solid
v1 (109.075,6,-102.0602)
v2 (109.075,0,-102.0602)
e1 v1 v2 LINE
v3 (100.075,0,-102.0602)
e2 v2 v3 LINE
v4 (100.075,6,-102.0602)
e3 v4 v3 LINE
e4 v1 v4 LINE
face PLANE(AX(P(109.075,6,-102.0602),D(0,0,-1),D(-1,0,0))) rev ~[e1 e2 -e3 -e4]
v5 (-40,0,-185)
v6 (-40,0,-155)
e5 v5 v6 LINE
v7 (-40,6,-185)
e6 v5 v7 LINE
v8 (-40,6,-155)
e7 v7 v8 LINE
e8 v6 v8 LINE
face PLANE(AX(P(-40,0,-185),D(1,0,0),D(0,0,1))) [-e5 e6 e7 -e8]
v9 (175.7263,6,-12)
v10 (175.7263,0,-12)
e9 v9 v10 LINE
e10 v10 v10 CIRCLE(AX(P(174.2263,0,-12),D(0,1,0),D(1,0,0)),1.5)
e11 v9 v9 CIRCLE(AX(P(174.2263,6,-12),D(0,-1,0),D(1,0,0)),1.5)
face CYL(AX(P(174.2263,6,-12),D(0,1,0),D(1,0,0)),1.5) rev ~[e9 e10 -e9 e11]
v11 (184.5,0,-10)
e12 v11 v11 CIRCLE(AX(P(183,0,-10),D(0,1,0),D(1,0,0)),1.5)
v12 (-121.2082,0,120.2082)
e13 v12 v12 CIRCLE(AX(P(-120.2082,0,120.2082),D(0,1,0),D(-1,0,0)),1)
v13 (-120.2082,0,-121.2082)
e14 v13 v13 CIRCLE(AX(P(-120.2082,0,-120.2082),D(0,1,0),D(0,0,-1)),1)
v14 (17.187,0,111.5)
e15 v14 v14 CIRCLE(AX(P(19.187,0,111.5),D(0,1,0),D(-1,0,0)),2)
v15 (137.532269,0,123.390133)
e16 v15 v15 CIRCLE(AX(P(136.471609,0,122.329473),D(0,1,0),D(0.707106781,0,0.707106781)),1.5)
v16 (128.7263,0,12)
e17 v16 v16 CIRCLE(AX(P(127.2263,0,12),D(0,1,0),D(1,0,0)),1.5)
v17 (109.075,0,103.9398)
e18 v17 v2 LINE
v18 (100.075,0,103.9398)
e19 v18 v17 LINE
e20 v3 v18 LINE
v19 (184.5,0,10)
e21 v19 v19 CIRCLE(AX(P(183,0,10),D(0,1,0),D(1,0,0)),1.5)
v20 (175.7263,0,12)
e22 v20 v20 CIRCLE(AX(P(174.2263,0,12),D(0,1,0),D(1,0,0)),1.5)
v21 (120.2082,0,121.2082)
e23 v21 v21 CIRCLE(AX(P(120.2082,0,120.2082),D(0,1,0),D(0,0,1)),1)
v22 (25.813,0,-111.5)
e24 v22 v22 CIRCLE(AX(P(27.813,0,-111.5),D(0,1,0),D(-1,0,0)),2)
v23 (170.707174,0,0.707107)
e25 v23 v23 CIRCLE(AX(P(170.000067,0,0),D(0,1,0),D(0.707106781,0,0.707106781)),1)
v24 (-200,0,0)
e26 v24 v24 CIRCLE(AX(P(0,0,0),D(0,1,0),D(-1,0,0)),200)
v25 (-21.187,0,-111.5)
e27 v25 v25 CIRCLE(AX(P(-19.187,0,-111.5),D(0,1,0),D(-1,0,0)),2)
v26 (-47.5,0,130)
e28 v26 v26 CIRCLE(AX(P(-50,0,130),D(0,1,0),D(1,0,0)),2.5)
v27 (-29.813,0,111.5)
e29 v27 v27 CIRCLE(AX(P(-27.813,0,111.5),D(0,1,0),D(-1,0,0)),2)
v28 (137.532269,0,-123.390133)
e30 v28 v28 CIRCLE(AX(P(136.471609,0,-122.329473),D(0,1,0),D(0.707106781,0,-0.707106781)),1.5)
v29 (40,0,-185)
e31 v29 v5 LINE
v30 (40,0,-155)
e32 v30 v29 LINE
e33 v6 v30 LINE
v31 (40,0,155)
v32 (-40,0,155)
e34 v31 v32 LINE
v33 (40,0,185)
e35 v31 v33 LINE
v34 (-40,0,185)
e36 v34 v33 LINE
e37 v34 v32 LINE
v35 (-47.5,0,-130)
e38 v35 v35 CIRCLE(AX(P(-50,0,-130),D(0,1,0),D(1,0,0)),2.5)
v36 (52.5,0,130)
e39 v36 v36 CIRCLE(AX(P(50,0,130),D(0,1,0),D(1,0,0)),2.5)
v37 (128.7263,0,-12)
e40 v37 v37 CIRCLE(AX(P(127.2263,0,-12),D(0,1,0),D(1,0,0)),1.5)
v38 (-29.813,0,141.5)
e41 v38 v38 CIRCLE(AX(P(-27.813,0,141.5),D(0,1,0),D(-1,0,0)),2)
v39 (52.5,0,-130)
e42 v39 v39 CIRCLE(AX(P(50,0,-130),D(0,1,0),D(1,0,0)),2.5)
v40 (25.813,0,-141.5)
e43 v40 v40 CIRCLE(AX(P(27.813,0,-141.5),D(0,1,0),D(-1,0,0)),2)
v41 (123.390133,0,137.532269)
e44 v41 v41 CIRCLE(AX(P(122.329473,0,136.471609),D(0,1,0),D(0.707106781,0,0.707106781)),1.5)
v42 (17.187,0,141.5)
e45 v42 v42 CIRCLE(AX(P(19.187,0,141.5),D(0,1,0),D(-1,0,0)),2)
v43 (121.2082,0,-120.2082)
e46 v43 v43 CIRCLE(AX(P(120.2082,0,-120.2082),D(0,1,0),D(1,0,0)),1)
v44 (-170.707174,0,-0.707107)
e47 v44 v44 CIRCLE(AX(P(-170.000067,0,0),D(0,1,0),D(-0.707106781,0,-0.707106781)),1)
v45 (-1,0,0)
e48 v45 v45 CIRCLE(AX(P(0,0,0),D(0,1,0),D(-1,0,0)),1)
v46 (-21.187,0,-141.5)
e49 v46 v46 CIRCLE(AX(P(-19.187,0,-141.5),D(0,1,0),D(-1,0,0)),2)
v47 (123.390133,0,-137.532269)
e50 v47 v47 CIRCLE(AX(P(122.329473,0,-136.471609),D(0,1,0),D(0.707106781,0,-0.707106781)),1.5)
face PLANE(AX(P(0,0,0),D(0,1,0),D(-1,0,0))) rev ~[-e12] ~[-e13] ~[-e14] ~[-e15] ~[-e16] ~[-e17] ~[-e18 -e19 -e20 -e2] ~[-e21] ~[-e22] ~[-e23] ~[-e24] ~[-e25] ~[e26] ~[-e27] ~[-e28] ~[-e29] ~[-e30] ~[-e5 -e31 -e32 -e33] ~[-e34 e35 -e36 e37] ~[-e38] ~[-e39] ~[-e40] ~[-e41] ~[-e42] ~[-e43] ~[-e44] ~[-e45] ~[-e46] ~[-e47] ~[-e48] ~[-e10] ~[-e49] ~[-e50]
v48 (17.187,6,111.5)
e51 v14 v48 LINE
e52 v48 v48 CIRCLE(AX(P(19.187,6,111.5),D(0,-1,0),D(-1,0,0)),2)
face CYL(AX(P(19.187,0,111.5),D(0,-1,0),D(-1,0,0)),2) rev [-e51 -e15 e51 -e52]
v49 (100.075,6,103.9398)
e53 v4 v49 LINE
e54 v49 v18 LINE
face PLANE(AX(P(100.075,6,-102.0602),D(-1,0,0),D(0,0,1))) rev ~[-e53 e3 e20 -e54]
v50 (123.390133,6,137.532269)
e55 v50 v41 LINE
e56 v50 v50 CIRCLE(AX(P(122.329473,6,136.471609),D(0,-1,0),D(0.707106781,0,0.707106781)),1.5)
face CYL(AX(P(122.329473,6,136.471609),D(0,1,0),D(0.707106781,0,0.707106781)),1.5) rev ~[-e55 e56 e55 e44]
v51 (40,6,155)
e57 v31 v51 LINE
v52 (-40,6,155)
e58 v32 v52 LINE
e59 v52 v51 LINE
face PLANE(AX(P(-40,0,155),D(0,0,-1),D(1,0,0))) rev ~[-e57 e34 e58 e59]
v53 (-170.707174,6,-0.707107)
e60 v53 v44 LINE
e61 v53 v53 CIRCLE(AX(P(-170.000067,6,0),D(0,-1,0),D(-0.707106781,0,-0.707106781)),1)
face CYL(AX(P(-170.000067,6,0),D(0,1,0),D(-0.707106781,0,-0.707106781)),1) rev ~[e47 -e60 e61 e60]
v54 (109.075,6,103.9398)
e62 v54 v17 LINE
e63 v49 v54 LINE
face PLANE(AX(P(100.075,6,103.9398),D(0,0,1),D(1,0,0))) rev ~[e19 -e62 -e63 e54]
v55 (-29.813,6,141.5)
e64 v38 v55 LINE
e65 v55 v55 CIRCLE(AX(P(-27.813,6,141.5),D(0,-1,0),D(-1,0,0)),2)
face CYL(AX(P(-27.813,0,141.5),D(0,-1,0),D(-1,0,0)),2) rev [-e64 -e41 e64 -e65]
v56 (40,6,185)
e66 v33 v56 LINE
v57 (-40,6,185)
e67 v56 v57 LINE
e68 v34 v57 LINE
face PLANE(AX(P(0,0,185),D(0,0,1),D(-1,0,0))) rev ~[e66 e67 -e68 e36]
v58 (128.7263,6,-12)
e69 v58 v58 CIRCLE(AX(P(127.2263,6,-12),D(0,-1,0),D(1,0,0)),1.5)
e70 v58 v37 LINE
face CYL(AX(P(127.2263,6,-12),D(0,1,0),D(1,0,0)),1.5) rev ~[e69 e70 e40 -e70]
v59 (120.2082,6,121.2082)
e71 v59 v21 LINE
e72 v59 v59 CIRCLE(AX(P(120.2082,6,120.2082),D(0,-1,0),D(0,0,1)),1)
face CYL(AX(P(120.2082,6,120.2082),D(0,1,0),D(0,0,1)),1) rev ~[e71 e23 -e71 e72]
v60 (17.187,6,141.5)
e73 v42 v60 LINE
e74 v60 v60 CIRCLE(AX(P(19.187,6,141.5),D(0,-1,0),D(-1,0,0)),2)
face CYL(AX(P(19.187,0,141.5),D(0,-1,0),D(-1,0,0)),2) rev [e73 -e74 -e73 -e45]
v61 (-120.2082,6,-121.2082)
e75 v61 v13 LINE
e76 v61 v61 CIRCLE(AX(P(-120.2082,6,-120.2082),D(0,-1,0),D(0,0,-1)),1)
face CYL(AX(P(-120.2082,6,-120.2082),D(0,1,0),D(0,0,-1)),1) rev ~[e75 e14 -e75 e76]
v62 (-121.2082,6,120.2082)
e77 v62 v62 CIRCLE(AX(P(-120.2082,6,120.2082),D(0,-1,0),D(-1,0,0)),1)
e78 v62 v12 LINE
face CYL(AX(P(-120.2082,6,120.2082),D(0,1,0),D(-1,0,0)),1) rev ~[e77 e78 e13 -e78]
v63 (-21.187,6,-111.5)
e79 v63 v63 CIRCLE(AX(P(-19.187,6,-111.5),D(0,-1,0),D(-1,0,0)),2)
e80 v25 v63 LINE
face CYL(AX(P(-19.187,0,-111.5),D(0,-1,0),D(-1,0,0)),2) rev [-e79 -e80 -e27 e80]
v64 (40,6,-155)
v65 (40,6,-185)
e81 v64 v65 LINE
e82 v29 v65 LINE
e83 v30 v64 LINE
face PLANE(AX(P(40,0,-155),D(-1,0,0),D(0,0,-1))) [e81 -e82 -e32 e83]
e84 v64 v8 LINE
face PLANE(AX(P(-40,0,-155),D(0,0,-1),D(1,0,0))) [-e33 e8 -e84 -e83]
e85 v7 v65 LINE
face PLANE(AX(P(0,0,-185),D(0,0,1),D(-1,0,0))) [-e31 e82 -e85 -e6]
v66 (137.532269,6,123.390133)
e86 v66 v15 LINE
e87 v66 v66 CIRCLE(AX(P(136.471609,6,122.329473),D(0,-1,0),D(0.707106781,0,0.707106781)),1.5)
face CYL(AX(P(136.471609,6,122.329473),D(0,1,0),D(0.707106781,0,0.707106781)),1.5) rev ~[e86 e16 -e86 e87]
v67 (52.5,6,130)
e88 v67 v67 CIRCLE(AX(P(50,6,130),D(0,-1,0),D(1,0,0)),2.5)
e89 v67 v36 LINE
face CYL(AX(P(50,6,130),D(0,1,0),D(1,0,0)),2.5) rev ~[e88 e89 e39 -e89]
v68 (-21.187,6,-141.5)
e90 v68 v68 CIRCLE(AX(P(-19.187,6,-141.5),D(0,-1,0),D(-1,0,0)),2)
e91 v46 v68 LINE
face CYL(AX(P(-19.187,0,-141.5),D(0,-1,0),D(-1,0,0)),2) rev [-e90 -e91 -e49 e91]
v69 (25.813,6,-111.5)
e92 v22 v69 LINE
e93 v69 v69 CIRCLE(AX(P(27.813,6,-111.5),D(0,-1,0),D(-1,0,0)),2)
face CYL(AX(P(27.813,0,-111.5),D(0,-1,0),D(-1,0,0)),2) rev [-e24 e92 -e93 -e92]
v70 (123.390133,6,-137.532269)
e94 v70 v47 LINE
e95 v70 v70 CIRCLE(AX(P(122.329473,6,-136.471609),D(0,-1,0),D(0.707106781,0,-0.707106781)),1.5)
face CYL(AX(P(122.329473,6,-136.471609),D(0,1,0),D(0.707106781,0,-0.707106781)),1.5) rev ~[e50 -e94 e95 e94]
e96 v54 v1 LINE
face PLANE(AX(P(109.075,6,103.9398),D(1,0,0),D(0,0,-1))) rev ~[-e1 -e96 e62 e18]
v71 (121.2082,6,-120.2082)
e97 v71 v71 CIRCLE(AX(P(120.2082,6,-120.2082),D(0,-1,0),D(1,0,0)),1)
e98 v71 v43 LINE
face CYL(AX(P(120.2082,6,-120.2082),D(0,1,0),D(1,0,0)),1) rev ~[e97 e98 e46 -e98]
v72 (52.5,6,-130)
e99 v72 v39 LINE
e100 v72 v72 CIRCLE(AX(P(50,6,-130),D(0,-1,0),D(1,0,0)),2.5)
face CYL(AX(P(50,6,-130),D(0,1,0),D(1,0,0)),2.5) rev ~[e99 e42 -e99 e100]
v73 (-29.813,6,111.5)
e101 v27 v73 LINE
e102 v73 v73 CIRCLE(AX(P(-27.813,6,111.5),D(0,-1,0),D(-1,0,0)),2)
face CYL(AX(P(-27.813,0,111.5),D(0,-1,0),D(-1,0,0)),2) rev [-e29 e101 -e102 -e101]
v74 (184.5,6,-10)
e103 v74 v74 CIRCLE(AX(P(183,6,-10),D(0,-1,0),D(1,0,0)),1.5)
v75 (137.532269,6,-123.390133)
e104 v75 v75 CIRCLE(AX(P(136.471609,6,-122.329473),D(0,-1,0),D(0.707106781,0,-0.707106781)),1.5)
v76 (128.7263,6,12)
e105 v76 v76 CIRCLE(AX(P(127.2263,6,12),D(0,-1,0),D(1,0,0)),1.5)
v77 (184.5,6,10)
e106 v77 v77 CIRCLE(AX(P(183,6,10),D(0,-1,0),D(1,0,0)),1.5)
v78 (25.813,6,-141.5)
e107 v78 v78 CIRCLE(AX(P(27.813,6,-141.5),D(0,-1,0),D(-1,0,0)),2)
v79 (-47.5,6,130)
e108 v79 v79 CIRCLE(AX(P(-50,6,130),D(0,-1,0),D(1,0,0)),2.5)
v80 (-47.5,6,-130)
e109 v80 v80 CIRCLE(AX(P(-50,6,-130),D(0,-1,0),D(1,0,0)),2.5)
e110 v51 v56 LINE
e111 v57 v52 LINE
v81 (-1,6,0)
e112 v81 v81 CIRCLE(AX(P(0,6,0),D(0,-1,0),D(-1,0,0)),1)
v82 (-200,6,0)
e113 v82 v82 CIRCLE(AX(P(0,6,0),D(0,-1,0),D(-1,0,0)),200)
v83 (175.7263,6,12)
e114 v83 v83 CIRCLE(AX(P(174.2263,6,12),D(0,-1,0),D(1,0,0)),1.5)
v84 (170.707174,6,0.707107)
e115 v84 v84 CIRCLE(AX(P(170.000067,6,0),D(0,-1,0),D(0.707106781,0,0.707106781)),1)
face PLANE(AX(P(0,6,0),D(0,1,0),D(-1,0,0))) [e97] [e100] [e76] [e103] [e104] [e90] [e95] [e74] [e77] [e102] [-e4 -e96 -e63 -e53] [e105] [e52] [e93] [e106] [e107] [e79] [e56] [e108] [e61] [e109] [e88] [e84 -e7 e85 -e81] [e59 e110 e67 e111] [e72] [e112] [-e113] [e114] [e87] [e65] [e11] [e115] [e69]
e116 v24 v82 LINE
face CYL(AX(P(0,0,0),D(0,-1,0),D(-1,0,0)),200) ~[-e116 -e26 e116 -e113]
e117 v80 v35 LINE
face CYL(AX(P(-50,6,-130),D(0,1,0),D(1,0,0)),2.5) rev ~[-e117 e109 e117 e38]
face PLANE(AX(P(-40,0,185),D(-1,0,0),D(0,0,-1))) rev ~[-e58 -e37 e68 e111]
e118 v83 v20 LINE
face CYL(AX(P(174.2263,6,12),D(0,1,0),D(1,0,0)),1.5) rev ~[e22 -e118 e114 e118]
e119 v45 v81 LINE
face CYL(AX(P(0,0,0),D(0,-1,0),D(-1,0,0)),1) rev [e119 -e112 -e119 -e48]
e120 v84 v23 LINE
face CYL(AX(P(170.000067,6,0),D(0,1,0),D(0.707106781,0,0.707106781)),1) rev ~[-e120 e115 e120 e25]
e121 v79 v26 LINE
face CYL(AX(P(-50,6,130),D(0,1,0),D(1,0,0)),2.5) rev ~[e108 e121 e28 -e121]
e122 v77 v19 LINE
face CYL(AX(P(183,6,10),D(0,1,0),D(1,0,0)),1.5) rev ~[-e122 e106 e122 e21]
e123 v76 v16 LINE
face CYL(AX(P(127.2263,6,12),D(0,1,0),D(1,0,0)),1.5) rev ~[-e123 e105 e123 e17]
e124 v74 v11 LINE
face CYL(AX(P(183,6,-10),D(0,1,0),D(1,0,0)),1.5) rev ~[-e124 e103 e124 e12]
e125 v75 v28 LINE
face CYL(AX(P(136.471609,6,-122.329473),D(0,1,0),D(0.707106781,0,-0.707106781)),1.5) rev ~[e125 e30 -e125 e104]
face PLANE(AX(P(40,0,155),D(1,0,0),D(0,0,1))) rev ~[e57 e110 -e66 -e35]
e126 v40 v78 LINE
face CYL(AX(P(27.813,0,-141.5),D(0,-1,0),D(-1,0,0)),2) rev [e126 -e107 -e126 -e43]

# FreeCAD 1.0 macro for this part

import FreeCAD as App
import Part
import Sketcher
Q = App.Units.Quantity


def add_polygon(sketch, points):
    """Adds a closed chain of lines whose ends are joined by coincident constraints."""
    first, n = sketch.GeometryCount, len(points)
    for a, b in zip(points, points[1:] + points[:1]):
        sketch.addGeometry(Part.LineSegment(App.Vector(*a, 0), App.Vector(*b, 0)), False)
    for i in range(n):
        sketch.addConstraint(Sketcher.Constraint("Coincident", first + i, 2, first + (i + 1) % n, 1))

doc = App.newDocument("Part")
body = doc.addObject("PartDesign::Body", "Body")

sketch1 = body.newObject("Sketcher::SketchObject", "Sketch")
sketch1.AttachmentSupport = (doc.getObject("XZ_Plane"), [""])
sketch1.MapMode = "FlatFace"
sketch1.addGeometry(Part.Circle(App.Vector(0, 0, 0), App.Vector(0, 0, 1), 200), False)
add_polygon(sketch1, [(-40, -185), (40, -185), (40, -155), (-40, -155)])
sketch1.addGeometry(Part.Circle(App.Vector(-19.187, -141.5, 0), App.Vector(0, 0, 1), 2), False)
sketch1.addGeometry(Part.Circle(App.Vector(-19.187, -111.5, 0), App.Vector(0, 0, 1), 2), False)
sketch1.addGeometry(Part.Circle(App.Vector(0, 0, 0), App.Vector(0, 0, 1), 1), False)
sketch1.addGeometry(Part.Circle(App.Vector(-27.813, 111.5, 0), App.Vector(0, 0, 1), 2), False)
sketch1.addGeometry(Part.Circle(App.Vector(-27.813, 141.5, 0), App.Vector(0, 0, 1), 2), False)
add_polygon(sketch1, [(-40, 155), (40, 155), (40, 185), (-40, 185)])
sketch1.addGeometry(Part.Circle(App.Vector(19.187, 141.5, 0), App.Vector(0, 0, 1), 2), False)
sketch1.addGeometry(Part.Circle(App.Vector(19.187, 111.5, 0), App.Vector(0, 0, 1), 2), False)
sketch1.addGeometry(Part.Circle(App.Vector(27.813, -111.5, 0), App.Vector(0, 0, 1), 2), False)
sketch1.addGeometry(Part.Circle(App.Vector(27.813, -141.5, 0), App.Vector(0, 0, 1), 2), False)
sketch1.addConstraint(Sketcher.Constraint("Horizontal", 1))
sketch1.addConstraint(Sketcher.Constraint("Vertical", 2))
sketch1.addConstraint(Sketcher.Constraint("Horizontal", 3))
sketch1.addConstraint(Sketcher.Constraint("Vertical", 4))
sketch1.addConstraint(Sketcher.Constraint("Horizontal", 10))
sketch1.addConstraint(Sketcher.Constraint("Vertical", 11))
sketch1.addConstraint(Sketcher.Constraint("Horizontal", 12))
sketch1.addConstraint(Sketcher.Constraint("Vertical", 13))
sketch1.addConstraint(Sketcher.Constraint("Coincident", 0, 3, -1, 1))
sketch1.addConstraint(Sketcher.Constraint("Coincident", 7, 3, -1, 1))
sketch1.addConstraint(Sketcher.Constraint("Equal", 5, 6))
sketch1.addConstraint(Sketcher.Constraint("Equal", 6, 8))
sketch1.addConstraint(Sketcher.Constraint("Equal", 8, 9))
sketch1.addConstraint(Sketcher.Constraint("Equal", 9, 14))
sketch1.addConstraint(Sketcher.Constraint("Equal", 14, 15))
sketch1.addConstraint(Sketcher.Constraint("Equal", 15, 16))
sketch1.addConstraint(Sketcher.Constraint("Equal", 16, 17))
sketch1.addConstraint(Sketcher.Constraint("Symmetric", 5, 3, 14, 3, -1, 1))
sketch1.addConstraint(Sketcher.Constraint("Symmetric", 6, 3, 15, 3, -1, 1))
sketch1.addConstraint(Sketcher.Constraint("Symmetric", 8, 3, 16, 3, -1, 1))
sketch1.addConstraint(Sketcher.Constraint("Symmetric", 9, 3, 17, 3, -1, 1))
sketch1.addConstraint(Sketcher.Constraint("Symmetric", 3, 2, 10, 2, -1, 1))
sketch1.addConstraint(Sketcher.Constraint("Symmetric", 1, 2, 12, 2, -1, 1))
sketch1.addConstraint(Sketcher.Constraint("Horizontal", 9, 3, 14, 3))
sketch1.addConstraint(Sketcher.Constraint("Horizontal", 8, 3, 15, 3))
sketch1.addConstraint(Sketcher.Constraint("Vertical", 5, 3, 6, 3))
sketch1.addConstraint(Sketcher.Constraint("Vertical", 8, 3, 9, 3))
sketch1.addConstraint(Sketcher.Constraint("Vertical", 2, 2, 10, 2))
sketch1.addConstraint(Sketcher.Constraint("Diameter", 0, Q("400 mm")))
sketch1.addConstraint(Sketcher.Constraint("Diameter", 5, Q("4 mm")))
sketch1.addConstraint(Sketcher.Constraint("Diameter", 7, Q("2 mm")))
sketch1.addConstraint(Sketcher.Constraint("DistanceX", 1, 1, 1, 2, Q("80 mm")))
sketch1.addConstraint(Sketcher.Constraint("DistanceY", 2, 1, 2, 2, Q("30 mm")))
sketch1.addConstraint(Sketcher.Constraint("DistanceY", 5, 3, 6, 3, Q("30 mm")))
sketch1.addConstraint(Sketcher.Constraint("DistanceX", 9, 3, 14, 3, Q("47 mm")))
sketch1.addConstraint(Sketcher.Constraint("DistanceY", 6, 3, -1, 1, Q("111.5 mm")))
sketch1.addConstraint(Sketcher.Constraint("DistanceX", 5, 3, -1, 1, Q("19.187 mm")))
sketch1.addConstraint(Sketcher.Constraint("DistanceY", 1, 2, -1, 1, Q("185 mm")))
pad1 = body.newObject("PartDesign::Pad", "Pad")
pad1.Profile = sketch1
pad1.Length = 6
pad1.Reversed = True

sketch2 = body.newObject("Sketcher::SketchObject", "Sketch001")
sketch2.AttachmentSupport = (doc.getObject("XZ_Plane"), [""])
sketch2.MapMode = "FlatFace"
sketch2.AttachmentOffset = App.Placement(App.Vector(0, 0, -6), App.Rotation())
sketch2.addGeometry(Part.Circle(App.Vector(120.2082, -120.2082, 0), App.Vector(0, 0, 1), 1), False)
sketch2.addConstraint(Sketcher.Constraint("Diameter", 0, Q("2 mm")))
sketch2.addConstraint(Sketcher.Constraint("DistanceX", -1, 1, 0, 3, Q("120.2082 mm")))
sketch2.addConstraint(Sketcher.Constraint("DistanceY", 0, 3, -1, 1, Q("120.2082 mm")))
pocket1 = body.newObject("PartDesign::Pocket", "Pocket")
pocket1.Profile = sketch2
pocket1.Length = 6
pocket1.Reversed = True
doc.recompute()

polarpattern = body.newObject("PartDesign::PolarPattern", "PolarPattern")
polarpattern.Originals = [pocket1]
polarpattern.Axis = (doc.getObject("Y_Axis"), [""])
polarpattern.Angle = 360
polarpattern.Occurrences = 8
body.Tip = polarpattern

sketch3 = body.newObject("Sketcher::SketchObject", "Sketch002")
sketch3.AttachmentSupport = (doc.getObject("XZ_Plane"), [""])
sketch3.MapMode = "FlatFace"
sketch3.AttachmentOffset = App.Placement(App.Vector(0, 0, -6), App.Rotation())
sketch3.addGeometry(Part.Circle(App.Vector(127.2263, -12, 0), App.Vector(0, 0, 1), 1.5), False)
sketch3.addGeometry(Part.Circle(App.Vector(127.2263, 12, 0), App.Vector(0, 0, 1), 1.5), False)
sketch3.addGeometry(Part.Circle(App.Vector(174.2263, -12, 0), App.Vector(0, 0, 1), 1.5), False)
sketch3.addGeometry(Part.Circle(App.Vector(174.2263, 12, 0), App.Vector(0, 0, 1), 1.5), False)
sketch3.addConstraint(Sketcher.Constraint("Equal", 0, 1))
sketch3.addConstraint(Sketcher.Constraint("Equal", 1, 2))
sketch3.addConstraint(Sketcher.Constraint("Equal", 2, 3))
sketch3.addConstraint(Sketcher.Constraint("Symmetric", 0, 3, 1, 3, -1))
sketch3.addConstraint(Sketcher.Constraint("Symmetric", 2, 3, 3, 3, -1))
sketch3.addConstraint(Sketcher.Constraint("Horizontal", 0, 3, 2, 3))
sketch3.addConstraint(Sketcher.Constraint("Diameter", 0, Q("3 mm")))
sketch3.addConstraint(Sketcher.Constraint("DistanceY", 0, 3, -1, 1, Q("12 mm")))
sketch3.addConstraint(Sketcher.Constraint("DistanceX", 0, 3, 2, 3, Q("47 mm")))
sketch3.addConstraint(Sketcher.Constraint("DistanceX", -1, 1, 0, 3, Q("127.2263 mm")))
pocket2 = body.newObject("PartDesign::Pocket", "Pocket001")
pocket2.Profile = sketch3
pocket2.Length = 6
pocket2.Reversed = True

sketch4 = body.newObject("Sketcher::SketchObject", "Sketch003")
sketch4.AttachmentSupport = (doc.getObject("XZ_Plane"), [""])
sketch4.MapMode = "FlatFace"
sketch4.AttachmentOffset = App.Placement(App.Vector(0, 0, -6), App.Rotation())
sketch4.addGeometry(Part.Circle(App.Vector(183, 10, 0), App.Vector(0, 0, 1), 1.5), False)
sketch4.addGeometry(Part.Circle(App.Vector(183, -10, 0), App.Vector(0, 0, 1), 1.5), False)
sketch4.addConstraint(Sketcher.Constraint("Equal", 0, 1))
sketch4.addConstraint(Sketcher.Constraint("Symmetric", 0, 3, 1, 3, -1))
sketch4.addConstraint(Sketcher.Constraint("Diameter", 0, Q("3 mm")))
sketch4.addConstraint(Sketcher.Constraint("DistanceY", -1, 1, 0, 3, Q("10 mm")))
sketch4.addConstraint(Sketcher.Constraint("DistanceX", -1, 1, 0, 3, Q("183 mm")))
pocket3 = body.newObject("PartDesign::Pocket", "Pocket002")
pocket3.Profile = sketch4
pocket3.Length = 6
pocket3.Reversed = True
doc.recompute()

polarpattern2 = body.newObject("PartDesign::PolarPattern", "PolarPattern001")
polarpattern2.Originals = [pocket3]
polarpattern2.Axis = (doc.getObject("Y_Axis"), [""])
polarpattern2.Angle = 45
polarpattern2.Occurrences = 2
body.Tip = polarpattern2
doc.recompute()

polarpattern3 = body.newObject("PartDesign::PolarPattern", "PolarPattern002")
polarpattern3.Originals = [pocket3]
polarpattern3.Axis = (doc.getObject("Y_Axis"), [""])
polarpattern3.Angle = 45
polarpattern3.Occurrences = 2
polarpattern3.Reversed = True
body.Tip = polarpattern3

sketch5 = body.newObject("Sketcher::SketchObject", "Sketch004")
sketch5.AttachmentSupport = (doc.getObject("XZ_Plane"), [""])
sketch5.MapMode = "FlatFace"
sketch5.AttachmentOffset = App.Placement(App.Vector(0, 0, -6), App.Rotation())
sketch5.addGeometry(Part.Circle(App.Vector(0, 0, 0), App.Vector(0, 0, 1), 1), False)
add_polygon(sketch5, [(109.075, -102.0602), (100.075, -102.0602), (100.075, 103.9398), (109.075, 103.9398)])
sketch5.addGeometry(Part.Circle(App.Vector(-50, -130, 0), App.Vector(0, 0, 1), 2.5), False)
sketch5.addGeometry(Part.Circle(App.Vector(50, -130, 0), App.Vector(0, 0, 1), 2.5), False)
sketch5.addGeometry(Part.Circle(App.Vector(-50, 130, 0), App.Vector(0, 0, 1), 2.5), False)
sketch5.addGeometry(Part.Circle(App.Vector(50, 130, 0), App.Vector(0, 0, 1), 2.5), False)
sketch5.addConstraint(Sketcher.Constraint("Horizontal", 1))
sketch5.addConstraint(Sketcher.Constraint("Vertical", 2))
sketch5.addConstraint(Sketcher.Constraint("Horizontal", 3))
sketch5.addConstraint(Sketcher.Constraint("Vertical", 4))
sketch5.addConstraint(Sketcher.Constraint("Coincident", 0, 3, -1, 1))
sketch5.addConstraint(Sketcher.Constraint("Equal", 5, 6))
sketch5.addConstraint(Sketcher.Constraint("Equal", 6, 7))
sketch5.addConstraint(Sketcher.Constraint("Equal", 7, 8))
sketch5.addConstraint(Sketcher.Constraint("Symmetric", 6, 3, 7, 3, -1, 1))
sketch5.addConstraint(Sketcher.Constraint("Symmetric", 5, 3, 8, 3, -1, 1))
sketch5.addConstraint(Sketcher.Constraint("Symmetric", 5, 3, 6, 3, -2))
sketch5.addConstraint(Sketcher.Constraint("Diameter", 5, Q("5 mm")))
sketch5.addConstraint(Sketcher.Constraint("DistanceX", 1, 2, 1, 1, Q("9 mm")))
sketch5.addConstraint(Sketcher.Constraint("DistanceY", 2, 1, 2, 2, Q("206 mm")))
sketch5.addConstraint(Sketcher.Constraint("Diameter", 0, Q("2 mm")))
sketch5.addConstraint(Sketcher.Constraint("DistanceY", 5, 3, -1, 1, Q("130 mm")))
sketch5.addConstraint(Sketcher.Constraint("DistanceX", 5, 3, 6, 3, Q("100 mm")))
sketch5.addConstraint(Sketcher.Constraint("DistanceX", -1, 1, 1, 2, Q("100.075 mm")))
sketch5.addConstraint(Sketcher.Constraint("DistanceY", 1, 2, -1, 1, Q("102.0602 mm")))
pocket4 = body.newObject("PartDesign::Pocket", "Pocket003")
pocket4.Profile = sketch5
pocket4.Length = 9
pocket4.Reversed = True

doc.recompute()
